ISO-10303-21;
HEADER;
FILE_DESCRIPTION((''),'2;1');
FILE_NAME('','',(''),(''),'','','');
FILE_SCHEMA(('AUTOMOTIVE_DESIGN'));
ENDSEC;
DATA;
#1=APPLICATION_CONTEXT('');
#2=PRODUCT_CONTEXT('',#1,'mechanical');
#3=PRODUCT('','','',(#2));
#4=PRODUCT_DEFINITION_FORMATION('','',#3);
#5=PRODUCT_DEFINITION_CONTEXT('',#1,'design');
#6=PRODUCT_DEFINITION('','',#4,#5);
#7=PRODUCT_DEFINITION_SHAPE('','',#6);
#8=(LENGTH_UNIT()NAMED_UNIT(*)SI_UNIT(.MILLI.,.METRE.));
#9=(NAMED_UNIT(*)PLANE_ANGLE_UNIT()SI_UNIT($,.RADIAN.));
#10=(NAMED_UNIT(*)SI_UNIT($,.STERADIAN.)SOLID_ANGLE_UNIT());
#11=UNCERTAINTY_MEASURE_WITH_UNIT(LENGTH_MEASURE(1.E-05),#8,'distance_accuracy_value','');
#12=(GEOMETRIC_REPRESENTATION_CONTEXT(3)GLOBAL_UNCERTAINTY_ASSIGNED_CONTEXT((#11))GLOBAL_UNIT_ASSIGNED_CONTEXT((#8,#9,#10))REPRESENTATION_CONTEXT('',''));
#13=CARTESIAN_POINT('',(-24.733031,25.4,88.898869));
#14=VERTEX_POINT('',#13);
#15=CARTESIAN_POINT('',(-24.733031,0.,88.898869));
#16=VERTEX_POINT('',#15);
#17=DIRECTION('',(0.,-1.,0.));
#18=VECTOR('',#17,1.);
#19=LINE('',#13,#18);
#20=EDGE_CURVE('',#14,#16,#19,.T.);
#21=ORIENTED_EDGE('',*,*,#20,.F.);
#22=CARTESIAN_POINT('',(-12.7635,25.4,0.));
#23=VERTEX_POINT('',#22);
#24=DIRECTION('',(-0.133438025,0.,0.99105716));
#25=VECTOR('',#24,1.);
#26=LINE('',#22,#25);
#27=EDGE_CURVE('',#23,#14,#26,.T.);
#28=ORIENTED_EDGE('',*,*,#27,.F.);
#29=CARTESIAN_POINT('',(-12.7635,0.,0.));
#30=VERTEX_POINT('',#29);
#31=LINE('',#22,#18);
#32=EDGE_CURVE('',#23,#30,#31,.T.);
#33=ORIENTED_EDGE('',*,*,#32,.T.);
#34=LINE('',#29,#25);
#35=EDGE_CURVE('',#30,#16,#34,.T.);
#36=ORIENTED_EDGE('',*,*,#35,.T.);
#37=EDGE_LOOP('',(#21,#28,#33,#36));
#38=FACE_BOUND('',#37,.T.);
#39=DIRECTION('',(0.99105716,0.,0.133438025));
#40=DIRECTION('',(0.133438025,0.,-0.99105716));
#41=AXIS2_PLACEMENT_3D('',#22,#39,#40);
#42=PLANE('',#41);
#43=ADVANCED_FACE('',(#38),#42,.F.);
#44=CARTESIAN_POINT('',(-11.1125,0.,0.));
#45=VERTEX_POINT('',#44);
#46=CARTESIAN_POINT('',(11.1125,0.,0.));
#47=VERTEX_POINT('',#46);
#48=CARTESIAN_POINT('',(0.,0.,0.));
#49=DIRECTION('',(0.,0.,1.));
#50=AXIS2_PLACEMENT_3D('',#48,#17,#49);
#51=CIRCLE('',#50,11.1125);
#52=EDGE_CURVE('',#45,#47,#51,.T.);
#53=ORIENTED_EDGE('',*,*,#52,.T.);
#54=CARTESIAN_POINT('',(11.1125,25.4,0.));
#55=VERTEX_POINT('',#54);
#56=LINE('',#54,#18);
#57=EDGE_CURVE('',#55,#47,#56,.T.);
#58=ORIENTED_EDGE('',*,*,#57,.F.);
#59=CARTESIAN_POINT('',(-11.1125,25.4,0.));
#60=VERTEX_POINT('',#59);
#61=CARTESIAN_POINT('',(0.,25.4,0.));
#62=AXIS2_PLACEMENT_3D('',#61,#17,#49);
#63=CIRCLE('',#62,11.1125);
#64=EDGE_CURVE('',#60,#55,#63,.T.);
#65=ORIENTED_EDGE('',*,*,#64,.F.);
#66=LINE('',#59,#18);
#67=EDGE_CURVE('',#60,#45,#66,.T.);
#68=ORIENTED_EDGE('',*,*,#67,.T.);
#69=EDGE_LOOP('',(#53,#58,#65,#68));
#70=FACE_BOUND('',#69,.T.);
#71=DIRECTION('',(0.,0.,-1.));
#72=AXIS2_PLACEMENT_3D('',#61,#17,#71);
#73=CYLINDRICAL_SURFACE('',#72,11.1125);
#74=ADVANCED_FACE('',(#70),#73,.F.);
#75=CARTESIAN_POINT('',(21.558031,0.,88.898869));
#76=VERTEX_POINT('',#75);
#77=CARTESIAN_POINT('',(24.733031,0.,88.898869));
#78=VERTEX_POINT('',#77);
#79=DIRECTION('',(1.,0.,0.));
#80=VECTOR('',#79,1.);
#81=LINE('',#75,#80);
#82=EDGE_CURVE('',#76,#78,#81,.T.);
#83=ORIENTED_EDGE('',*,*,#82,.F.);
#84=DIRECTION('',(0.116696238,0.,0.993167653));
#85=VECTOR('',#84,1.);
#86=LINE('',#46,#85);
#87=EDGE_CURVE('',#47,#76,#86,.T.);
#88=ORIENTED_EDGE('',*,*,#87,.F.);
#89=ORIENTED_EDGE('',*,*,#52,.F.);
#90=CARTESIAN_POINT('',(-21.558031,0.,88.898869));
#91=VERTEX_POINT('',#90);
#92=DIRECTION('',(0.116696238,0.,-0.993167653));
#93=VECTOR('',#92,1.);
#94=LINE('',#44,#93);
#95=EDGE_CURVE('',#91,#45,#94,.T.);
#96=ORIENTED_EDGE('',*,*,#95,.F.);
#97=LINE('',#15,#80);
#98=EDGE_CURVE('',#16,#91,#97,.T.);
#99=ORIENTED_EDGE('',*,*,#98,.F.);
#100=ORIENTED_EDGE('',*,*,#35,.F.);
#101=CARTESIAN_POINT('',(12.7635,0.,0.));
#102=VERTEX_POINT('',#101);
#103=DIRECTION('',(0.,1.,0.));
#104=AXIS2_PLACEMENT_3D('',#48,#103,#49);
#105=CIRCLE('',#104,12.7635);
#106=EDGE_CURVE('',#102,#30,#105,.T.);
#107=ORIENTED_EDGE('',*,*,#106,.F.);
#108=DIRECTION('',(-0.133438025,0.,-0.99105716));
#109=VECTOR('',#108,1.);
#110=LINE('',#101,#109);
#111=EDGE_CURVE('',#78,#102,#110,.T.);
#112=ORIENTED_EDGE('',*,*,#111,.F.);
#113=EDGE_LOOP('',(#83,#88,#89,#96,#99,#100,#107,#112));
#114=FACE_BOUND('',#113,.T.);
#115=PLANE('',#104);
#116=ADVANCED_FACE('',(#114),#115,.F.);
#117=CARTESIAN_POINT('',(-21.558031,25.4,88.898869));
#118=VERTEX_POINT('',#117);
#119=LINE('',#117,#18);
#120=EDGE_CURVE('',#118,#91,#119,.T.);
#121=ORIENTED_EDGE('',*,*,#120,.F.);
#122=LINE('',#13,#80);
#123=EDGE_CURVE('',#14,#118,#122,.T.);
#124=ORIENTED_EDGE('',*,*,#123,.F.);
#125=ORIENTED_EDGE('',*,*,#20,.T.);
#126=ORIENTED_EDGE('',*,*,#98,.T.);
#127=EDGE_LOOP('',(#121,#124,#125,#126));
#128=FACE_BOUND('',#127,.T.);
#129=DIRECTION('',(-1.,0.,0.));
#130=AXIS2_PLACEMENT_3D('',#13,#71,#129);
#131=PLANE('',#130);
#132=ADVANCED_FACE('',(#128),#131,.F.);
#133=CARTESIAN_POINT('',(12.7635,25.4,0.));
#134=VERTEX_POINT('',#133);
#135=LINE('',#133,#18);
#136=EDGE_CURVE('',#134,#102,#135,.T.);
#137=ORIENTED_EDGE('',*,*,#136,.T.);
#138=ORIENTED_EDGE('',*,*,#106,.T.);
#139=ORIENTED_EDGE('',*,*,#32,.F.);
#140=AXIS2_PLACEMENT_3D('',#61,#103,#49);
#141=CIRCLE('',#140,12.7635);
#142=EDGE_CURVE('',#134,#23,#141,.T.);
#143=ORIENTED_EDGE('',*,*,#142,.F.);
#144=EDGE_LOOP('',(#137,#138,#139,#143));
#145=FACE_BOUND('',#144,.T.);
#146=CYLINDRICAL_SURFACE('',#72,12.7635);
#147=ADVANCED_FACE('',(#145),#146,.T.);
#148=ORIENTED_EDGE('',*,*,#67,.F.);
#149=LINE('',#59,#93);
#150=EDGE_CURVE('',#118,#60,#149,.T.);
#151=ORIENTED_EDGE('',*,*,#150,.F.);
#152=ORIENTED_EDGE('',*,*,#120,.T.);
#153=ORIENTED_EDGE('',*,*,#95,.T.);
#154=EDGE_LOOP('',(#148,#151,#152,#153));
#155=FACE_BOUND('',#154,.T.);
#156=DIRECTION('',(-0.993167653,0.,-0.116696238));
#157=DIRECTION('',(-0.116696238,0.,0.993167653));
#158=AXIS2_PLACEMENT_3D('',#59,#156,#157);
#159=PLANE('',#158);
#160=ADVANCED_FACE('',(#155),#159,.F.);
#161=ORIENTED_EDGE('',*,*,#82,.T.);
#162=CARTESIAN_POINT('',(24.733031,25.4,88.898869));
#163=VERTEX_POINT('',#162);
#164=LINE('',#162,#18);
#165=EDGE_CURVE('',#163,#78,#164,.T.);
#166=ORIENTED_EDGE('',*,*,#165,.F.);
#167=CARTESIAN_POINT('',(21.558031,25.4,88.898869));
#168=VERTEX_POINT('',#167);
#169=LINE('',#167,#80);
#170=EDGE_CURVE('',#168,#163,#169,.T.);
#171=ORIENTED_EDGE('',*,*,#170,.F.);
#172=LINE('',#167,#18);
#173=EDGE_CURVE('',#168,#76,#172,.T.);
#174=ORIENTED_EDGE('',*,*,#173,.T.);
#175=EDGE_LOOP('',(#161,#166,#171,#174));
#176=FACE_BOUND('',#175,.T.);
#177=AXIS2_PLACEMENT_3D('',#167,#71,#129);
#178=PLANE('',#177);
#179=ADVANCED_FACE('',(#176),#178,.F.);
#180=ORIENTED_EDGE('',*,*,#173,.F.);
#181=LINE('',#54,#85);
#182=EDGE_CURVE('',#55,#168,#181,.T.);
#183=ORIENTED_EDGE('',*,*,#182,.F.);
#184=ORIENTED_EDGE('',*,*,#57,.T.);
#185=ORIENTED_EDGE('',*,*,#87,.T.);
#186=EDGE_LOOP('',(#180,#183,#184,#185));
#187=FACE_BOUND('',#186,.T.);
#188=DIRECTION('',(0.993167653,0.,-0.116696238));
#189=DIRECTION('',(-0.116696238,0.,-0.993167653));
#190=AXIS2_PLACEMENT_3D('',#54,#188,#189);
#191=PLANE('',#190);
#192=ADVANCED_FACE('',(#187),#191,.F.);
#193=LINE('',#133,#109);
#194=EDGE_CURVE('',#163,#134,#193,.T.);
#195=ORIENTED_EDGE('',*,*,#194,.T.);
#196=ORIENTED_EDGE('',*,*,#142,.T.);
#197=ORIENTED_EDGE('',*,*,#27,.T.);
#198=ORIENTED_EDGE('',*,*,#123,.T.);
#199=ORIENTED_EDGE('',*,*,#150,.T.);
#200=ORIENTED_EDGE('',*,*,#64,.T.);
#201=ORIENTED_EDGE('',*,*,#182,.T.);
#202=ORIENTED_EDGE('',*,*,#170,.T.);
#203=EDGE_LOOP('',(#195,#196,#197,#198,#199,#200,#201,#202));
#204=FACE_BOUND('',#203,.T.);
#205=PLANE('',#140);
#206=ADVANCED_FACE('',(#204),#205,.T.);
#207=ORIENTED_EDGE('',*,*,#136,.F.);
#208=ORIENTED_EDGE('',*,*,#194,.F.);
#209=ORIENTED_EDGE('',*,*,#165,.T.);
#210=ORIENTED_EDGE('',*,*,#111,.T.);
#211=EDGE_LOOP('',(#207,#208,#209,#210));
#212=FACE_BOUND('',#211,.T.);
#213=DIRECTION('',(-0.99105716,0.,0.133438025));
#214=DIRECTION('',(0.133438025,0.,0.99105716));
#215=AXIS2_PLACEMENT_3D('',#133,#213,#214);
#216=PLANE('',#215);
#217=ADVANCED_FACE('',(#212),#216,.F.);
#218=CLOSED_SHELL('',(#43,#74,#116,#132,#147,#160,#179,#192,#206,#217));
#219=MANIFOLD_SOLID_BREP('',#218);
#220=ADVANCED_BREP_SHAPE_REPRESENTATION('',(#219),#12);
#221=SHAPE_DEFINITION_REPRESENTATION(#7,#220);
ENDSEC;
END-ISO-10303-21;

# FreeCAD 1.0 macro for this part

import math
import FreeCAD as App
import Part
import Sketcher
Q = App.Units.Quantity

doc = App.newDocument("Part")
params = doc.addObject("Spreadsheet::Sheet", "Params")
for row, (alias, value) in enumerate([
    ("sketch1_radius", "0.4375 in"),
    ("sketch1_width", "0.125 in"),
    ("pad1_length", "1 in"),
], start=1):
    params.set(f"A{row}", alias)
    params.set(f"B{row}", "=" + value)
    params.setAlias(f"B{row}", alias)

body = doc.addObject("PartDesign::Body", "Body")

# Sketch on XZ plane
sketch1 = doc.addObject("Sketcher::SketchObject", "Sketch")
body.addObject(sketch1)
sketch1.AttachmentSupport = (doc.XZ_Plane, [""])
sketch1.MapMode = "FlatFace"
sketch1.addGeometry([
    Part.LineSegment(App.Vector(-21.558031, 88.898869, 0), App.Vector(-11.1125, 0, 0)),  # 0
    Part.ArcOfCircle(Part.Circle(App.Vector(0, 0, 0), App.Vector(0, 0, 1), 11.1125), math.radians(180), math.radians(360)),  # 1
    Part.LineSegment(App.Vector(11.1125, 0, 0), App.Vector(21.558031, 88.898869, 0)),  # 2
    Part.LineSegment(App.Vector(21.558031, 88.898869, 0), App.Vector(24.733031, 88.898869, 0)),  # 3
    Part.LineSegment(App.Vector(24.733031, 88.898869, 0), App.Vector(12.7635, 0, 0)),  # 4
    Part.ArcOfCircle(Part.Circle(App.Vector(0, 0, 0), App.Vector(0, 0, 1), 12.7635), math.radians(180), math.radians(360)),  # 5
    Part.LineSegment(App.Vector(-12.7635, 0, 0), App.Vector(-24.733031, 88.898869, 0)),  # 6
    Part.LineSegment(App.Vector(-24.733031, 88.898869, 0), App.Vector(-21.558031, 88.898869, 0)),  # 7
], False)
sketch1.addConstraint([
    Sketcher.Constraint("Coincident", 0, 2, 1, 1),
    Sketcher.Constraint("Coincident", 1, 2, 2, 1),
    Sketcher.Constraint("Coincident", 2, 2, 3, 1),
    Sketcher.Constraint("Coincident", 3, 2, 4, 1),
    Sketcher.Constraint("Coincident", 4, 2, 5, 2),
    Sketcher.Constraint("Coincident", 5, 1, 6, 1),
    Sketcher.Constraint("Coincident", 6, 2, 7, 1),
    Sketcher.Constraint("Coincident", 7, 2, 0, 1),
    Sketcher.Constraint("Horizontal", 3),
    Sketcher.Constraint("Horizontal", 7),
    Sketcher.Constraint("Coincident", 1, 3, -1, 1),
    Sketcher.Constraint("Coincident", 5, 3, -1, 1),
    Sketcher.Constraint("Symmetric", 3, 2, 6, 2, -2),
    Sketcher.Constraint("PointOnObject", 0, 2, -1),
    Sketcher.Constraint("PointOnObject", 1, 2, -1),
    Sketcher.Constraint("PointOnObject", 4, 2, -1),
    Sketcher.Constraint("PointOnObject", 5, 1, -1),
    Sketcher.Constraint("Equal", 3, 7),
    Sketcher.Constraint("Radius", 1, Q("0.4375 in")),
    Sketcher.Constraint("Radius", 5, Q("0.5025 in")),
    Sketcher.Constraint("DistanceX", 3, 1, 3, 2, Q("0.125 in")),
    Sketcher.Constraint("Distance", 4, 89.701051),
    Sketcher.Constraint("DistanceX", -1, 1, 2, 2, 21.558031),
])
sketch1.setExpression("Constraints[18]", "Params.sketch1_radius")
sketch1.setExpression("Constraints[20]", "Params.sketch1_width")
pad1 = doc.addObject("PartDesign::Pad", "Pad")
body.addObject(pad1)
pad1.Profile = sketch1
pad1.setExpression("Length", "Params.pad1_length")
pad1.Reversed = True

doc.recompute()
